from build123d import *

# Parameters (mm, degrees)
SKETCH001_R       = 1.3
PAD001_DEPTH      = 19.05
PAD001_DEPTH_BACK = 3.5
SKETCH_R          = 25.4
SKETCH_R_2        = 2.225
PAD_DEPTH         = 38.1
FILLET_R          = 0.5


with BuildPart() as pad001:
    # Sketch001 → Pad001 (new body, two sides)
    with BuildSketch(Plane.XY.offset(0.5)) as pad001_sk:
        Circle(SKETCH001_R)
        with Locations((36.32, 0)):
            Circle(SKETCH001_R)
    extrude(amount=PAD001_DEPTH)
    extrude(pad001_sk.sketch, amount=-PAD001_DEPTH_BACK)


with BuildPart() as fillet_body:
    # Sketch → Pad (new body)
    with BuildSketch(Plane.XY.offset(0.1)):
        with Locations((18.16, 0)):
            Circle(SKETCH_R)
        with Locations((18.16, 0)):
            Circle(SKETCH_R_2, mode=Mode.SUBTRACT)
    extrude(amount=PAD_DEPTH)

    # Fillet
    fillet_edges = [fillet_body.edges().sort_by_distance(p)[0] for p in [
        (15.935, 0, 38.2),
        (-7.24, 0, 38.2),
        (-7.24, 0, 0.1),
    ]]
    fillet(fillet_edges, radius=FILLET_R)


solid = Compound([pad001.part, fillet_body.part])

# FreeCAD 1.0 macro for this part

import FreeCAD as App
import Part
import Sketcher
Q = App.Units.Quantity


def edges_at(feature, points):
    """Names of the edges that pass closest to the given points."""
    edges = feature.Shape.Edges
    near = lambda p: min(range(len(edges)), key=lambda i: edges[i].distToShape(Part.Vertex(*p))[0])
    return sorted({f"Edge{near(p) + 1}" for p in points})

doc = App.newDocument("Part")
body = doc.addObject("PartDesign::Body", "Body")
body.AllowCompound = True

# Sketch on XY plane
sketch1 = body.newObject("Sketcher::SketchObject", "Sketch")
sketch1.AttachmentSupport = (doc.getObject("XY_Plane"), [""])
sketch1.MapMode = "FlatFace"
sketch1.AttachmentOffset = App.Placement(App.Vector(0, 0, 0.5), App.Rotation())
sketch1.addGeometry([
    Part.Circle(App.Vector(0, 0, 0), App.Vector(0, 0, 1), 1.3),
    Part.Circle(App.Vector(36.32, 0, 0), App.Vector(0, 0, 1), 1.3),
], False)
sketch1.addConstraint([
    Sketcher.Constraint("Coincident", 0, 3, -1, 1),
    Sketcher.Constraint("Equal", 0, 1),
    Sketcher.Constraint("PointOnObject", 1, 3, -1),
    Sketcher.Constraint("Diameter", 0, 2.6),
    Sketcher.Constraint("DistanceX", -1, 1, 1, 3, 36.32),
])
pad1 = body.newObject("PartDesign::Pad", "Pad")
pad1.Profile = sketch1
pad1.Type = "TwoLengths"
pad1.Length = Q("0.75 in")
pad1.Length2 = 3.5
body2 = doc.addObject("PartDesign::Body", "Body001")

# Sketch on XY plane
sketch2 = body2.newObject("Sketcher::SketchObject", "Sketch001")
sketch2.AttachmentSupport = (doc.getObject("XY_Plane001"), [""])
sketch2.MapMode = "FlatFace"
sketch2.AttachmentOffset = App.Placement(App.Vector(0, 0, 0.1), App.Rotation())
sketch2.addGeometry([
    Part.Circle(App.Vector(18.16, 0, 0), App.Vector(0, 0, 1), 25.4),
    Part.Circle(App.Vector(18.16, 0, 0), App.Vector(0, 0, 1), 2.225),
], False)
sketch2.addConstraint([
    Sketcher.Constraint("Coincident", 1, 3, 0, 3),
    Sketcher.Constraint("PointOnObject", 0, 3, -1),
    Sketcher.Constraint("Diameter", 0, Q("2 in")),
    Sketcher.Constraint("Diameter", 1, 4.45),
    Sketcher.Constraint("DistanceX", -1, 1, 0, 3, 18.16),
])
pad2 = body2.newObject("PartDesign::Pad", "Pad001")
pad2.Profile = sketch2
pad2.Length = Q("1.5 in")
doc.recompute()

fillet = body2.newObject("PartDesign::Fillet", "Fillet")
fillet.Base = (pad2, edges_at(pad2, [(15.935, 0, 38.2), (-7.24, 0, 38.2), (-7.24, 0, 0.1)]))
fillet.Radius = 0.5

doc.recompute()
